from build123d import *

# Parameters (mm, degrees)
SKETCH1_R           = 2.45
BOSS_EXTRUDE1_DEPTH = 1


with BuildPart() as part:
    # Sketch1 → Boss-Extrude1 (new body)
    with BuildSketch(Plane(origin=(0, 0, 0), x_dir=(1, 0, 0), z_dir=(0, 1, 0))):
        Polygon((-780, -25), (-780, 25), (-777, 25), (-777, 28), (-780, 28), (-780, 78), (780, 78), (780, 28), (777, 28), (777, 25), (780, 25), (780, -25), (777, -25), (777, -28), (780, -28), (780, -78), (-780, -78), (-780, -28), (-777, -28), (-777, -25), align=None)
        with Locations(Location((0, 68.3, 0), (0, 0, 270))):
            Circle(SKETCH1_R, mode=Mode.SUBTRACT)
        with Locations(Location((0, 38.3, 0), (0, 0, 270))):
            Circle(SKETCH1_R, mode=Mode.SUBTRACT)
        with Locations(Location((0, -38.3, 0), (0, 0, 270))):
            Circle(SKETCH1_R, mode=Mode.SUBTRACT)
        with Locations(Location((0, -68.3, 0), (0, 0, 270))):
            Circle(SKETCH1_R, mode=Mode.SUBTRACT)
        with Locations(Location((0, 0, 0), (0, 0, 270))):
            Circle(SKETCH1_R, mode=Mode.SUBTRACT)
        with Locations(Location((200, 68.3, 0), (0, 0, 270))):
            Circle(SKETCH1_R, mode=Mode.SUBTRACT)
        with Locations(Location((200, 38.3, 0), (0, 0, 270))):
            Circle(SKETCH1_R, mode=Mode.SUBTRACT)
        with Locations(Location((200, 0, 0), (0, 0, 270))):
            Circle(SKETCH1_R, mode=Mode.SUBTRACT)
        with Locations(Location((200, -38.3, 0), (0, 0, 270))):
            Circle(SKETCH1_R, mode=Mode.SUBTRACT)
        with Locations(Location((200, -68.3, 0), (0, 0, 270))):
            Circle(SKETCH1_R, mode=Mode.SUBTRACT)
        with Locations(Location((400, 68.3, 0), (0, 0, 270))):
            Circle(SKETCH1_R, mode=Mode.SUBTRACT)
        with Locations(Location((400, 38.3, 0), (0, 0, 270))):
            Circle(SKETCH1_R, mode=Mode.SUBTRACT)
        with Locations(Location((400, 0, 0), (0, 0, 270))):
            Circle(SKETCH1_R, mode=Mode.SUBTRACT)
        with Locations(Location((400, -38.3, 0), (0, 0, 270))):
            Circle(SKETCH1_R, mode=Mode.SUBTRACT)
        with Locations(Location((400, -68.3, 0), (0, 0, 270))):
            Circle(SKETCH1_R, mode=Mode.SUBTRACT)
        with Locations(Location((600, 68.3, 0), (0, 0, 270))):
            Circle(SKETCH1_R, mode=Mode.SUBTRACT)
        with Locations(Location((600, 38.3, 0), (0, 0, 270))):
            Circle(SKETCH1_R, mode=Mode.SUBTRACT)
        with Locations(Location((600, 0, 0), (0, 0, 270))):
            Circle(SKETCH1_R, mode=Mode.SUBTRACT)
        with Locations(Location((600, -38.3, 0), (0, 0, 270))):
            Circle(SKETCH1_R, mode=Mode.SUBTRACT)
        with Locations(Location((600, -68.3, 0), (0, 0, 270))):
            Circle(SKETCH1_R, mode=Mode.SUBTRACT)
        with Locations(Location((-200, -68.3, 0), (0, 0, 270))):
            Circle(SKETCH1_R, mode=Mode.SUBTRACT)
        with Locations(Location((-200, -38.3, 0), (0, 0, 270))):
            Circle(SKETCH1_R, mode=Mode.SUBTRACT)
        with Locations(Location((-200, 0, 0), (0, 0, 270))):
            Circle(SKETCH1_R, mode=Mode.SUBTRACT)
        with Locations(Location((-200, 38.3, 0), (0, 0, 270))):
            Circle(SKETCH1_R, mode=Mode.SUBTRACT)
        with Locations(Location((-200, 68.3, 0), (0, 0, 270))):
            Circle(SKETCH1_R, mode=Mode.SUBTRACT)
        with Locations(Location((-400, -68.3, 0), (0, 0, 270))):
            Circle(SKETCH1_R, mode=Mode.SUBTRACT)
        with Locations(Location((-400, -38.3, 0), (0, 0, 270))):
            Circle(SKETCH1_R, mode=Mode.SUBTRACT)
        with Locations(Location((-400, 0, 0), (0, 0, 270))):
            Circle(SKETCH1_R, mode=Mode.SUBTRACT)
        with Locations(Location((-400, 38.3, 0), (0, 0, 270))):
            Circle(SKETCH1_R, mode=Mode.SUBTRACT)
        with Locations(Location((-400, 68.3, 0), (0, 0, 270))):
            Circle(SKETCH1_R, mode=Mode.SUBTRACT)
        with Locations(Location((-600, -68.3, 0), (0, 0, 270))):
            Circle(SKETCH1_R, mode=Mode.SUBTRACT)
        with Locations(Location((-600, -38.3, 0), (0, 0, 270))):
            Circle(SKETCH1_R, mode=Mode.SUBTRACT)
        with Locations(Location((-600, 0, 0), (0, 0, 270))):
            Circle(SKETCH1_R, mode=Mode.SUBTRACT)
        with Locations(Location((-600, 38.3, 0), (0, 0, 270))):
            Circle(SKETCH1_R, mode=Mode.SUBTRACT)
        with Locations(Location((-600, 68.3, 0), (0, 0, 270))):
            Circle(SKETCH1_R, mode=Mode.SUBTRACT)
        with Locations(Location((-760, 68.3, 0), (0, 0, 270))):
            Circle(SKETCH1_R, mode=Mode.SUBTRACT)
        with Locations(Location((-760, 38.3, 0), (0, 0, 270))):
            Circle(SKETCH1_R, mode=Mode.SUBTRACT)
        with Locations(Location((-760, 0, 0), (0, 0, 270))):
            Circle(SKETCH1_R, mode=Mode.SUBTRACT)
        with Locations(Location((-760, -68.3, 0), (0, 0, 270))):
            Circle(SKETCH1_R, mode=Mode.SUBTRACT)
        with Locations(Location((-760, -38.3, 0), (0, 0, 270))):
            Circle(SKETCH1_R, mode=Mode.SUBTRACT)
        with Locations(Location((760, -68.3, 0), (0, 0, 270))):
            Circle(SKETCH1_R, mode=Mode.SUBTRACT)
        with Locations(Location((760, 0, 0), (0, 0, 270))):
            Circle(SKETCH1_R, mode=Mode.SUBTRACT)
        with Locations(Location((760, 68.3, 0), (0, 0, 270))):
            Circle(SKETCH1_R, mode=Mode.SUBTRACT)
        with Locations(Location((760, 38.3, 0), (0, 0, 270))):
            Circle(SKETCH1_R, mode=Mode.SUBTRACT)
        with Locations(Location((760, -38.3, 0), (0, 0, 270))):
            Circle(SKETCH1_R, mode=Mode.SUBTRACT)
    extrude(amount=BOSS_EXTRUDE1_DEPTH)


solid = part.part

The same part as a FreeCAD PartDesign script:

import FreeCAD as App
import Part
import Sketcher
from FreeCAD import Vector
Q = App.Units.Quantity

doc = App.newDocument("Part")
body = doc.addObject("PartDesign::Body", "Body")

# Sketch on XZ plane
sketch1 = doc.addObject("Sketcher::SketchObject", "Sketch")
body.addObject(sketch1)
sketch1.AttachmentSupport = (doc.XZ_Plane, [""])
sketch1.MapMode = "FlatFace"
sketch1.addGeometry(Part.LineSegment(Vector(-780, -25, 0), Vector(-780, 25, 0)), False)
sketch1.addGeometry(Part.LineSegment(Vector(-780, 25, 0), Vector(-777, 25, 0)), False)
sketch1.addGeometry(Part.LineSegment(Vector(-777, 25, 0), Vector(-777, 28, 0)), False)
sketch1.addGeometry(Part.LineSegment(Vector(-777, 28, 0), Vector(-780, 28, 0)), False)
sketch1.addGeometry(Part.LineSegment(Vector(-780, 28, 0), Vector(-780, 78, 0)), False)
sketch1.addGeometry(Part.LineSegment(Vector(-780, 78, 0), Vector(780, 78, 0)), False)
sketch1.addGeometry(Part.LineSegment(Vector(780, 78, 0), Vector(780, 28, 0)), False)
sketch1.addGeometry(Part.LineSegment(Vector(780, 28, 0), Vector(777, 28, 0)), False)
sketch1.addGeometry(Part.LineSegment(Vector(777, 28, 0), Vector(777, 25, 0)), False)
sketch1.addGeometry(Part.LineSegment(Vector(777, 25, 0), Vector(780, 25, 0)), False)
sketch1.addGeometry(Part.LineSegment(Vector(780, 25, 0), Vector(780, -25, 0)), False)
sketch1.addGeometry(Part.LineSegment(Vector(780, -25, 0), Vector(777, -25, 0)), False)
sketch1.addGeometry(Part.LineSegment(Vector(777, -25, 0), Vector(777, -28, 0)), False)
sketch1.addGeometry(Part.LineSegment(Vector(777, -28, 0), Vector(780, -28, 0)), False)
sketch1.addGeometry(Part.LineSegment(Vector(780, -28, 0), Vector(780, -78, 0)), False)
sketch1.addGeometry(Part.LineSegment(Vector(780, -78, 0), Vector(-780, -78, 0)), False)
sketch1.addGeometry(Part.LineSegment(Vector(-780, -78, 0), Vector(-780, -28, 0)), False)
sketch1.addGeometry(Part.LineSegment(Vector(-780, -28, 0), Vector(-777, -28, 0)), False)
sketch1.addGeometry(Part.LineSegment(Vector(-777, -28, 0), Vector(-777, -25, 0)), False)
sketch1.addGeometry(Part.LineSegment(Vector(-777, -25, 0), Vector(-780, -25, 0)), False)
sketch1.addGeometry(Part.Circle(Vector(760, 68.3, 0), Vector(0, 0, 1), 2.5), False)
sketch1.addGeometry(Part.Circle(Vector(600, 68.3, 0), Vector(0, 0, 1), 2.5), False)
sketch1.addGeometry(Part.Circle(Vector(400, 68.3, 0), Vector(0, 0, 1), 2.5), False)
sketch1.addGeometry(Part.Circle(Vector(760, 38.3, 0), Vector(0, 0, 1), 2.5), False)
sketch1.addGeometry(Part.Circle(Vector(600, 38.3, 0), Vector(0, 0, 1), 2.5), False)
sketch1.addGeometry(Part.Circle(Vector(400, 38.3, 0), Vector(0, 0, 1), 2.5), False)
sketch1.addGeometry(Part.Circle(Vector(200, 68.3, 0), Vector(0, 0, 1), 2.5), False)
sketch1.addGeometry(Part.Circle(Vector(200, 38.3, 0), Vector(0, 0, 1), 2.5), False)
sketch1.addGeometry(Part.Circle(Vector(0, 68.3, 0), Vector(0, 0, 1), 2.5), False)
sketch1.addGeometry(Part.Circle(Vector(-200, 68.3, 0), Vector(0, 0, 1), 2.5), False)
sketch1.addGeometry(Part.Circle(Vector(0, 38.3, 0), Vector(0, 0, 1), 2.5), False)
sketch1.addGeometry(Part.Circle(Vector(-200, 38.3, 0), Vector(0, 0, 1), 2.5), False)
sketch1.addGeometry(Part.Circle(Vector(-400, 68.3, 0), Vector(0, 0, 1), 2.5), False)
sketch1.addGeometry(Part.Circle(Vector(-600, 68.3, 0), Vector(0, 0, 1), 2.5), False)
sketch1.addGeometry(Part.Circle(Vector(-760, 68.3, 0), Vector(0, 0, 1), 2.5), False)
sketch1.addGeometry(Part.Circle(Vector(-400, 38.3, 0), Vector(0, 0, 1), 2.5), False)
sketch1.addGeometry(Part.Circle(Vector(-600, 38.3, 0), Vector(0, 0, 1), 2.5), False)
sketch1.addGeometry(Part.Circle(Vector(-760, 38.3, 0), Vector(0, 0, 1), 2.5), False)
sketch1.addGeometry(Part.Circle(Vector(760, 0, 0), Vector(0, 0, 1), 2.5), False)
sketch1.addGeometry(Part.Circle(Vector(600, 0, 0), Vector(0, 0, 1), 2.5), False)
sketch1.addGeometry(Part.Circle(Vector(400, 0, 0), Vector(0, 0, 1), 2.5), False)
sketch1.addGeometry(Part.Circle(Vector(200, 0, 0), Vector(0, 0, 1), 2.5), False)
sketch1.addGeometry(Part.Circle(Vector(760, -38.3, 0), Vector(0, 0, 1), 2.5), False)
sketch1.addGeometry(Part.Circle(Vector(600, -38.3, 0), Vector(0, 0, 1), 2.5), False)
sketch1.addGeometry(Part.Circle(Vector(400, -38.3, 0), Vector(0, 0, 1), 2.5), False)
sketch1.addGeometry(Part.Circle(Vector(760, -68.3, 0), Vector(0, 0, 1), 2.5), False)
sketch1.addGeometry(Part.Circle(Vector(600, -68.3, 0), Vector(0, 0, 1), 2.5), False)
sketch1.addGeometry(Part.Circle(Vector(400, -68.3, 0), Vector(0, 0, 1), 2.5), False)
sketch1.addGeometry(Part.Circle(Vector(200, -38.3, 0), Vector(0, 0, 1), 2.5), False)
sketch1.addGeometry(Part.Circle(Vector(200, -68.3, 0), Vector(0, 0, 1), 2.5), False)
sketch1.addGeometry(Part.Circle(Vector(0, 0, 0), Vector(0, 0, 1), 2.5), False)
sketch1.addGeometry(Part.Circle(Vector(-200, 0, 0), Vector(0, 0, 1), 2.5), False)
sketch1.addGeometry(Part.Circle(Vector(-400, 0, 0), Vector(0, 0, 1), 2.5), False)
sketch1.addGeometry(Part.Circle(Vector(-600, 0, 0), Vector(0, 0, 1), 2.5), False)
sketch1.addGeometry(Part.Circle(Vector(-760, 0, 0), Vector(0, 0, 1), 2.5), False)
sketch1.addGeometry(Part.Circle(Vector(0, -38.3, 0), Vector(0, 0, 1), 2.5), False)
sketch1.addGeometry(Part.Circle(Vector(-200, -38.3, 0), Vector(0, 0, 1), 2.5), False)
sketch1.addGeometry(Part.Circle(Vector(0, -68.3, 0), Vector(0, 0, 1), 2.5), False)
sketch1.addGeometry(Part.Circle(Vector(-200, -68.3, 0), Vector(0, 0, 1), 2.5), False)
sketch1.addGeometry(Part.Circle(Vector(-400, -38.3, 0), Vector(0, 0, 1), 2.5), False)
sketch1.addGeometry(Part.Circle(Vector(-600, -38.3, 0), Vector(0, 0, 1), 2.5), False)
sketch1.addGeometry(Part.Circle(Vector(-760, -38.3, 0), Vector(0, 0, 1), 2.5), False)
sketch1.addGeometry(Part.Circle(Vector(-400, -68.3, 0), Vector(0, 0, 1), 2.5), False)
sketch1.addGeometry(Part.Circle(Vector(-600, -68.3, 0), Vector(0, 0, 1), 2.5), False)
sketch1.addGeometry(Part.Circle(Vector(-760, -68.3, 0), Vector(0, 0, 1), 2.5), False)
sketch1.addConstraint(Sketcher.Constraint("Coincident", 0, 2, 1, 1))
sketch1.addConstraint(Sketcher.Constraint("Coincident", 1, 2, 2, 1))
sketch1.addConstraint(Sketcher.Constraint("Coincident", 2, 2, 3, 1))
sketch1.addConstraint(Sketcher.Constraint("Coincident", 3, 2, 4, 1))
sketch1.addConstraint(Sketcher.Constraint("Coincident", 4, 2, 5, 1))
sketch1.addConstraint(Sketcher.Constraint("Coincident", 5, 2, 6, 1))
sketch1.addConstraint(Sketcher.Constraint("Coincident", 6, 2, 7, 1))
sketch1.addConstraint(Sketcher.Constraint("Coincident", 7, 2, 8, 1))
sketch1.addConstraint(Sketcher.Constraint("Coincident", 8, 2, 9, 1))
sketch1.addConstraint(Sketcher.Constraint("Coincident", 9, 2, 10, 1))
sketch1.addConstraint(Sketcher.Constraint("Coincident", 10, 2, 11, 1))
sketch1.addConstraint(Sketcher.Constraint("Coincident", 11, 2, 12, 1))
sketch1.addConstraint(Sketcher.Constraint("Coincident", 12, 2, 13, 1))
sketch1.addConstraint(Sketcher.Constraint("Coincident", 13, 2, 14, 1))
sketch1.addConstraint(Sketcher.Constraint("Coincident", 14, 2, 15, 1))
sketch1.addConstraint(Sketcher.Constraint("Coincident", 15, 2, 16, 1))
sketch1.addConstraint(Sketcher.Constraint("Coincident", 16, 2, 17, 1))
sketch1.addConstraint(Sketcher.Constraint("Coincident", 17, 2, 18, 1))
sketch1.addConstraint(Sketcher.Constraint("Coincident", 18, 2, 19, 1))
sketch1.addConstraint(Sketcher.Constraint("Coincident", 19, 2, 0, 1))
sketch1.addConstraint(Sketcher.Constraint("Vertical", 0))
sketch1.addConstraint(Sketcher.Constraint("Horizontal", 1))
sketch1.addConstraint(Sketcher.Constraint("Vertical", 2))
sketch1.addConstraint(Sketcher.Constraint("Horizontal", 3))
sketch1.addConstraint(Sketcher.Constraint("Vertical", 4))
sketch1.addConstraint(Sketcher.Constraint("Horizontal", 5))
sketch1.addConstraint(Sketcher.Constraint("Vertical", 6))
sketch1.addConstraint(Sketcher.Constraint("Horizontal", 7))
sketch1.addConstraint(Sketcher.Constraint("Vertical", 8))
sketch1.addConstraint(Sketcher.Constraint("Horizontal", 9))
sketch1.addConstraint(Sketcher.Constraint("Vertical", 10))
sketch1.addConstraint(Sketcher.Constraint("Horizontal", 11))
sketch1.addConstraint(Sketcher.Constraint("Vertical", 12))
sketch1.addConstraint(Sketcher.Constraint("Horizontal", 13))
sketch1.addConstraint(Sketcher.Constraint("Vertical", 14))
sketch1.addConstraint(Sketcher.Constraint("Horizontal", 15))
sketch1.addConstraint(Sketcher.Constraint("Vertical", 16))
sketch1.addConstraint(Sketcher.Constraint("Horizontal", 17))
sketch1.addConstraint(Sketcher.Constraint("Vertical", 18))
sketch1.addConstraint(Sketcher.Constraint("Horizontal", 19))
sketch1.addConstraint(Sketcher.Constraint("Coincident", 50, 3, -1, 1))
sketch1.addConstraint(Sketcher.Constraint("Equal", 20, 21))
sketch1.addConstraint(Sketcher.Constraint("Equal", 21, 22))
sketch1.addConstraint(Sketcher.Constraint("Equal", 22, 23))
sketch1.addConstraint(Sketcher.Constraint("Equal", 23, 24))
sketch1.addConstraint(Sketcher.Constraint("Equal", 24, 25))
sketch1.addConstraint(Sketcher.Constraint("Equal", 25, 26))
sketch1.addConstraint(Sketcher.Constraint("Equal", 26, 27))
sketch1.addConstraint(Sketcher.Constraint("Equal", 27, 28))
sketch1.addConstraint(Sketcher.Constraint("Equal", 28, 29))
sketch1.addConstraint(Sketcher.Constraint("Equal", 29, 30))
sketch1.addConstraint(Sketcher.Constraint("Equal", 30, 31))
sketch1.addConstraint(Sketcher.Constraint("Equal", 31, 32))
sketch1.addConstraint(Sketcher.Constraint("Equal", 32, 33))
sketch1.addConstraint(Sketcher.Constraint("Equal", 33, 34))
sketch1.addConstraint(Sketcher.Constraint("Equal", 34, 35))
sketch1.addConstraint(Sketcher.Constraint("Equal", 35, 36))
sketch1.addConstraint(Sketcher.Constraint("Equal", 36, 37))
sketch1.addConstraint(Sketcher.Constraint("Equal", 37, 38))
sketch1.addConstraint(Sketcher.Constraint("Equal", 38, 39))
sketch1.addConstraint(Sketcher.Constraint("Equal", 39, 40))
sketch1.addConstraint(Sketcher.Constraint("Equal", 40, 41))
sketch1.addConstraint(Sketcher.Constraint("Equal", 41, 42))
sketch1.addConstraint(Sketcher.Constraint("Equal", 42, 43))
sketch1.addConstraint(Sketcher.Constraint("Equal", 43, 44))
sketch1.addConstraint(Sketcher.Constraint("Equal", 44, 45))
sketch1.addConstraint(Sketcher.Constraint("Equal", 45, 46))
sketch1.addConstraint(Sketcher.Constraint("Equal", 46, 47))
sketch1.addConstraint(Sketcher.Constraint("Equal", 47, 48))
sketch1.addConstraint(Sketcher.Constraint("Equal", 48, 49))
sketch1.addConstraint(Sketcher.Constraint("Equal", 49, 50))
sketch1.addConstraint(Sketcher.Constraint("Equal", 50, 51))
sketch1.addConstraint(Sketcher.Constraint("Equal", 51, 52))
sketch1.addConstraint(Sketcher.Constraint("Equal", 52, 53))
sketch1.addConstraint(Sketcher.Constraint("Equal", 53, 54))
sketch1.addConstraint(Sketcher.Constraint("Equal", 54, 55))
sketch1.addConstraint(Sketcher.Constraint("Equal", 55, 56))
sketch1.addConstraint(Sketcher.Constraint("Equal", 56, 57))
sketch1.addConstraint(Sketcher.Constraint("Equal", 57, 58))
sketch1.addConstraint(Sketcher.Constraint("Equal", 58, 59))
sketch1.addConstraint(Sketcher.Constraint("Equal", 59, 60))
sketch1.addConstraint(Sketcher.Constraint("Equal", 60, 61))
sketch1.addConstraint(Sketcher.Constraint("Equal", 61, 62))
sketch1.addConstraint(Sketcher.Constraint("Equal", 62, 63))
sketch1.addConstraint(Sketcher.Constraint("Equal", 63, 64))
sketch1.addConstraint(Sketcher.Constraint("Symmetric", 37, 3, 42, 3, -1, 1))
sketch1.addConstraint(Sketcher.Constraint("Symmetric", 36, 3, 43, 3, -1, 1))
sketch1.addConstraint(Sketcher.Constraint("Symmetric", 35, 3, 44, 3, -1, 1))
sketch1.addConstraint(Sketcher.Constraint("Symmetric", 34, 3, 45, 3, -1, 1))
sketch1.addConstraint(Sketcher.Constraint("Symmetric", 33, 3, 46, 3, -1, 1))
sketch1.addConstraint(Sketcher.Constraint("Symmetric", 32, 3, 47, 3, -1, 1))
sketch1.addConstraint(Sketcher.Constraint("Symmetric", 31, 3, 48, 3, -1, 1))
sketch1.addConstraint(Sketcher.Constraint("Symmetric", 29, 3, 49, 3, -1, 1))
sketch1.addConstraint(Sketcher.Constraint("Symmetric", 41, 3, 51, 3, -1, 1))
sketch1.addConstraint(Sketcher.Constraint("Symmetric", 40, 3, 52, 3, -1, 1))
sketch1.addConstraint(Sketcher.Constraint("Symmetric", 39, 3, 53, 3, -1, 1))
sketch1.addConstraint(Sketcher.Constraint("Symmetric", 38, 3, 54, 3, -1, 1))
sketch1.addConstraint(Sketcher.Constraint("Symmetric", 30, 3, 55, 3, -1, 1))
sketch1.addConstraint(Sketcher.Constraint("Symmetric", 27, 3, 56, 3, -1, 1))
sketch1.addConstraint(Sketcher.Constraint("Symmetric", 28, 3, 57, 3, -1, 1))
sketch1.addConstraint(Sketcher.Constraint("Symmetric", 26, 3, 58, 3, -1, 1))
sketch1.addConstraint(Sketcher.Constraint("Symmetric", 25, 3, 59, 3, -1, 1))
sketch1.addConstraint(Sketcher.Constraint("Symmetric", 24, 3, 60, 3, -1, 1))
sketch1.addConstraint(Sketcher.Constraint("Symmetric", 23, 3, 61, 3, -1, 1))
sketch1.addConstraint(Sketcher.Constraint("Symmetric", 22, 3, 62, 3, -1, 1))
sketch1.addConstraint(Sketcher.Constraint("Symmetric", 21, 3, 63, 3, -1, 1))
sketch1.addConstraint(Sketcher.Constraint("Symmetric", 20, 3, 64, 3, -1, 1))
sketch1.addConstraint(Sketcher.Constraint("Symmetric", 0, 2, 10, 2, -1, 1))
sketch1.addConstraint(Sketcher.Constraint("Symmetric", 2, 2, 12, 2, -1, 1))
sketch1.addConstraint(Sketcher.Constraint("Symmetric", 4, 2, 14, 2, -1, 1))
sketch1.addConstraint(Sketcher.Constraint("Symmetric", 6, 2, 16, 2, -1, 1))
sketch1.addConstraint(Sketcher.Constraint("Symmetric", 8, 2, 18, 2, -1, 1))
sketch1.addConstraint(Sketcher.Constraint("Symmetric", 26, 3, 29, 3, -2))
sketch1.addConstraint(Sketcher.Constraint("Symmetric", 27, 3, 31, 3, -2))
sketch1.addConstraint(Sketcher.Constraint("Symmetric", 22, 3, 32, 3, -2))
sketch1.addConstraint(Sketcher.Constraint("Symmetric", 21, 3, 33, 3, -2))
sketch1.addConstraint(Sketcher.Constraint("Symmetric", 20, 3, 34, 3, -2))
sketch1.addConstraint(Sketcher.Constraint("Symmetric", 25, 3, 35, 3, -2))
sketch1.addConstraint(Sketcher.Constraint("Symmetric", 24, 3, 36, 3, -2))
sketch1.addConstraint(Sketcher.Constraint("Symmetric", 23, 3, 37, 3, -2))
sketch1.addConstraint(Sketcher.Constraint("Symmetric", 3, 2, 6, 2, -2))
sketch1.addConstraint(Sketcher.Constraint("Symmetric", 1, 2, 8, 2, -2))
sketch1.addConstraint(Sketcher.Constraint("PointOnObject", 28, 3, -2))
sketch1.addConstraint(Sketcher.Constraint("PointOnObject", 30, 3, -2))
sketch1.addConstraint(Sketcher.Constraint("PointOnObject", 38, 3, -1))
sketch1.addConstraint(Sketcher.Constraint("PointOnObject", 39, 3, -1))
sketch1.addConstraint(Sketcher.Constraint("PointOnObject", 40, 3, -1))
sketch1.addConstraint(Sketcher.Constraint("PointOnObject", 41, 3, -1))
sketch1.addConstraint(Sketcher.Constraint("Horizontal", 20, 3, 21, 3))
sketch1.addConstraint(Sketcher.Constraint("Horizontal", 21, 3, 22, 3))
sketch1.addConstraint(Sketcher.Constraint("Horizontal", 23, 3, 24, 3))
sketch1.addConstraint(Sketcher.Constraint("Horizontal", 24, 3, 25, 3))
sketch1.addConstraint(Sketcher.Constraint("Horizontal", 22, 3, 26, 3))
sketch1.addConstraint(Sketcher.Constraint("Horizontal", 25, 3, 27, 3))
sketch1.addConstraint(Sketcher.Constraint("Horizontal", 26, 3, 28, 3))
sketch1.addConstraint(Sketcher.Constraint("Horizontal", 27, 3, 30, 3))
sketch1.addConstraint(Sketcher.Constraint("Vertical", 20, 3, 23, 3))
sketch1.addConstraint(Sketcher.Constraint("Vertical", 21, 3, 24, 3))
sketch1.addConstraint(Sketcher.Constraint("Vertical", 22, 3, 25, 3))
sketch1.addConstraint(Sketcher.Constraint("Vertical", 26, 3, 27, 3))
sketch1.addConstraint(Sketcher.Constraint("Vertical", 23, 3, 38, 3))
sketch1.addConstraint(Sketcher.Constraint("Vertical", 24, 3, 39, 3))
sketch1.addConstraint(Sketcher.Constraint("Vertical", 25, 3, 40, 3))
sketch1.addConstraint(Sketcher.Constraint("Vertical", 27, 3, 41, 3))
sketch1.addConstraint(Sketcher.Constraint("Vertical", 0, 2, 3, 2))
sketch1.addConstraint(Sketcher.Constraint("Equal", 19, 2))
sketch1.addConstraint(Sketcher.Constraint("Equal", 0, 4))
sketch1.addConstraint(Sketcher.Constraint("Diameter", 20, Q("4.9 mm")))
sketch1.addConstraint(Sketcher.Constraint("DistanceX", 1, 1, 1, 2, Q("3 mm")))
sketch1.addConstraint(Sketcher.Constraint("DistanceX", 5, 1, 5, 2, Q("1560 mm")))
sketch1.addConstraint(Sketcher.Constraint("DistanceY", 0, 1, 0, 2, Q("50 mm")))
sketch1.addConstraint(Sketcher.Constraint("DistanceX", -1, 1, 20, 3, Q("760 mm")))
sketch1.addConstraint(Sketcher.Constraint("DistanceX", -1, 1, 21, 3, Q("600 mm")))
sketch1.addConstraint(Sketcher.Constraint("DistanceX", -1, 1, 22, 3, Q("400 mm")))
sketch1.addConstraint(Sketcher.Constraint("DistanceX", -1, 1, 26, 3, Q("200 mm")))
sketch1.addConstraint(Sketcher.Constraint("DistanceY", -1, 1, 20, 3, Q("68.3 mm")))
sketch1.addConstraint(Sketcher.Constraint("DistanceY", -1, 1, 23, 3, Q("38.3 mm")))
pad1 = doc.addObject("PartDesign::Pad", "Pad")
body.addObject(pad1)
pad1.Profile = sketch1
pad1.Length = 1
pad1.Reversed = True

doc.recompute()
